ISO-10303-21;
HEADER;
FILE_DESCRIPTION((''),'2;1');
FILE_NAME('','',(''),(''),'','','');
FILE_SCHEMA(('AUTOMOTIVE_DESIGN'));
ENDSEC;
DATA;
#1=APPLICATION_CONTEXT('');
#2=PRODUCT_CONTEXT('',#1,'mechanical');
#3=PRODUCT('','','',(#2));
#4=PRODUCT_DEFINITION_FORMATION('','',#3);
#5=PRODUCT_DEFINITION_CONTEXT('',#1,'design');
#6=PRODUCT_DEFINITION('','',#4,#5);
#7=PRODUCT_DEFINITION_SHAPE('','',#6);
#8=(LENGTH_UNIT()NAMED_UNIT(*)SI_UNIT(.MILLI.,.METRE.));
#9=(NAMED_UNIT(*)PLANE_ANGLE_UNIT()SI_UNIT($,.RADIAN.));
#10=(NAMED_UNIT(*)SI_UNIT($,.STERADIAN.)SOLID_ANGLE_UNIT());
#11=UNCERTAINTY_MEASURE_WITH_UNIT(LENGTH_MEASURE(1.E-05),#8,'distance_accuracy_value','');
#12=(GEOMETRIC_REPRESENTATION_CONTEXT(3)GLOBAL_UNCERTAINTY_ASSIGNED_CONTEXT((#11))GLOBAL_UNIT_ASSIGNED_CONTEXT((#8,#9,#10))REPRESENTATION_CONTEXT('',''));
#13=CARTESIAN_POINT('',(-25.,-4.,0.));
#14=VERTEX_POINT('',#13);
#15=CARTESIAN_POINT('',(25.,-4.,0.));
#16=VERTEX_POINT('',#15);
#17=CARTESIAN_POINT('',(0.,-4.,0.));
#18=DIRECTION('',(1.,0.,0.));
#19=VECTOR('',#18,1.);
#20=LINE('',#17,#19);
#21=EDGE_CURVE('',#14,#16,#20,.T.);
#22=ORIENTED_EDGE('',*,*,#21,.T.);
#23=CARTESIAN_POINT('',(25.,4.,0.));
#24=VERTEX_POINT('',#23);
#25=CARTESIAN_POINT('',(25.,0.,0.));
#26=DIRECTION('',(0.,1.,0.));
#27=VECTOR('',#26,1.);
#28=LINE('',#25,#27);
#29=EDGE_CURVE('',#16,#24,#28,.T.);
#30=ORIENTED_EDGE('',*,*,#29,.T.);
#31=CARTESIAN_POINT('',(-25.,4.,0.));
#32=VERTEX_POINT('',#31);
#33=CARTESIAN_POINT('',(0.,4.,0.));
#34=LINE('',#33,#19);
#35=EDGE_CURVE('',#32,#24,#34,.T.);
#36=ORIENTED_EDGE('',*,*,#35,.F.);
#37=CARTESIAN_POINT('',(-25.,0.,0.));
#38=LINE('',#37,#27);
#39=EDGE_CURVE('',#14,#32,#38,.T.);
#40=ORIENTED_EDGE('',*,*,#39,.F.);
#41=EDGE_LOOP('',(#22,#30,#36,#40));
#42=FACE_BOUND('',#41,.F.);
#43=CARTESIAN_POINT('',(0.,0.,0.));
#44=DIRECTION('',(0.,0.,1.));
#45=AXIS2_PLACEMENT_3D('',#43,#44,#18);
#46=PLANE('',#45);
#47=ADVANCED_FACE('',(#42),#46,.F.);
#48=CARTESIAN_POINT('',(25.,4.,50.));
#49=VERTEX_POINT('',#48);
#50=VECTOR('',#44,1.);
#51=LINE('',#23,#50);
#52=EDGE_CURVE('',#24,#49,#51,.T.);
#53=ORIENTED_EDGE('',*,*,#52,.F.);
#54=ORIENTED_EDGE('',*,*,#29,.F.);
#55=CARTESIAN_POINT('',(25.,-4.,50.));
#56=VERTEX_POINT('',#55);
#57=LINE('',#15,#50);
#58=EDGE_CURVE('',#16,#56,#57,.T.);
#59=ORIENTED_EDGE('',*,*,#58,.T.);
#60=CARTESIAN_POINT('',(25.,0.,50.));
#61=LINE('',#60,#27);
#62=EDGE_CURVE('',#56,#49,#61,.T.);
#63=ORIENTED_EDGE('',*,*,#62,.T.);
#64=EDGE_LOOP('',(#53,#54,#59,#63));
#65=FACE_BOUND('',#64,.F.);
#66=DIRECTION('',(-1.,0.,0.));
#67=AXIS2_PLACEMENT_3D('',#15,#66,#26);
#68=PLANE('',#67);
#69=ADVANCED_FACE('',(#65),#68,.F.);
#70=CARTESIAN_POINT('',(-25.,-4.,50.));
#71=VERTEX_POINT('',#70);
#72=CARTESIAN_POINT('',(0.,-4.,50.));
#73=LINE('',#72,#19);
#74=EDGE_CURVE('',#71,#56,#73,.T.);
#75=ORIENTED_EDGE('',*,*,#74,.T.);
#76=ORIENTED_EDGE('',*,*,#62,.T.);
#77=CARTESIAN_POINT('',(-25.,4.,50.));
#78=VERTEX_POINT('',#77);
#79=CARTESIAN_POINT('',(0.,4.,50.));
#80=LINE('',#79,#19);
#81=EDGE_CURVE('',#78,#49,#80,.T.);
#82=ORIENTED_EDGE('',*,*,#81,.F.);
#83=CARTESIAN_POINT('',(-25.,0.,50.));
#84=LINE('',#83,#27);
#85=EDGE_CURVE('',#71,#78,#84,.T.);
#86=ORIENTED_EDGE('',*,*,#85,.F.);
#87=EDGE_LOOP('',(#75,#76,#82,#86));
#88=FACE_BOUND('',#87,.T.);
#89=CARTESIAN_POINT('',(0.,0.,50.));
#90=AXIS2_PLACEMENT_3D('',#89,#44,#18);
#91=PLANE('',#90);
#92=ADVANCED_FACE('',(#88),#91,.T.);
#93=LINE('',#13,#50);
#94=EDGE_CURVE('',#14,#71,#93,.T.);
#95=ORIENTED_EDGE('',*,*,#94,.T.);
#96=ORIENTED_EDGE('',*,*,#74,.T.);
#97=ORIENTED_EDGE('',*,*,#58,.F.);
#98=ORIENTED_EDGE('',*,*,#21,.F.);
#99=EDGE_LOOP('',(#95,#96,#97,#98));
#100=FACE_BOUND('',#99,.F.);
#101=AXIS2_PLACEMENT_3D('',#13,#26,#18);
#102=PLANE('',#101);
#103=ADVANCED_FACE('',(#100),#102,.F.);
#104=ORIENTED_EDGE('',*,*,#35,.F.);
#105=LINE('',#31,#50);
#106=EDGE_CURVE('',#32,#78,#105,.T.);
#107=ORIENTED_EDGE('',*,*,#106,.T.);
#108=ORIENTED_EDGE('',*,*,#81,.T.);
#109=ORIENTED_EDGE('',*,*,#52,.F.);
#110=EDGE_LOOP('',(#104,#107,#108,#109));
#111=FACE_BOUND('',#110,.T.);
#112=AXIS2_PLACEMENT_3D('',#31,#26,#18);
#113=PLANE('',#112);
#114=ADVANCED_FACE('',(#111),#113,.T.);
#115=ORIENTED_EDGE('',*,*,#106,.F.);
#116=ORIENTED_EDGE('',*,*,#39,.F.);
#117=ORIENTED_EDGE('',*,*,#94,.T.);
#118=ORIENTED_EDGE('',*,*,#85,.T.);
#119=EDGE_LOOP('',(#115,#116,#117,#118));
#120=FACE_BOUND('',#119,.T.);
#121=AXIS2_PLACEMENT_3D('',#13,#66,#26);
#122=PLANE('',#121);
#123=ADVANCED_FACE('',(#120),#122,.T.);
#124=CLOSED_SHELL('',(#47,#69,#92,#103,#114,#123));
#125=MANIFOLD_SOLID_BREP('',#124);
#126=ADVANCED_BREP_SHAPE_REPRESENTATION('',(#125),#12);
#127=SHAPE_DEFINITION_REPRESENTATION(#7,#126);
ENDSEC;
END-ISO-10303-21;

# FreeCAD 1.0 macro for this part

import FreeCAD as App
import Part
import Sketcher

V = App.Vector

doc = App.newDocument("Part")
body = doc.addObject("PartDesign::Body", "Body")

# Sketch on XY plane
sketch1 = body.newObject("Sketcher::SketchObject", "Sketch")
sketch1.AttachmentSupport = (doc.getObject("XY_Plane"), [""])
sketch1.MapMode = "FlatFace"
sketch1.addGeometry(Part.LineSegment(V(-25, 4, 0), V(-25, -4, 0)), False)
sketch1.addGeometry(Part.LineSegment(V(-25, -4, 0), V(25, -4, 0)), False)
sketch1.addGeometry(Part.LineSegment(V(25, -4, 0), V(25, 4, 0)), False)
sketch1.addGeometry(Part.LineSegment(V(25, 4, 0), V(-25, 4, 0)), False)
sketch1.addConstraint(Sketcher.Constraint("Coincident", 0, 2, 1, 1))
sketch1.addConstraint(Sketcher.Constraint("Coincident", 1, 2, 2, 1))
sketch1.addConstraint(Sketcher.Constraint("Coincident", 2, 2, 3, 1))
sketch1.addConstraint(Sketcher.Constraint("Coincident", 3, 2, 0, 1))
sketch1.addConstraint(Sketcher.Constraint("Vertical", 0))
sketch1.addConstraint(Sketcher.Constraint("Horizontal", 1))
sketch1.addConstraint(Sketcher.Constraint("Vertical", 2))
sketch1.addConstraint(Sketcher.Constraint("Horizontal", 3))
sketch1.addConstraint(Sketcher.Constraint("Symmetric", 0, 2, 2, 2, -1, 1))
sketch1.addConstraint(Sketcher.Constraint("DistanceX", 1, 1, 1, 2, 50.0))
sketch1.addConstraint(Sketcher.Constraint("DistanceY", 0, 2, 0, 1, 8.0))
pad1 = body.newObject("PartDesign::Pad", "Pad")
pad1.Profile = sketch1
pad1.Length = 50

doc.recompute()
